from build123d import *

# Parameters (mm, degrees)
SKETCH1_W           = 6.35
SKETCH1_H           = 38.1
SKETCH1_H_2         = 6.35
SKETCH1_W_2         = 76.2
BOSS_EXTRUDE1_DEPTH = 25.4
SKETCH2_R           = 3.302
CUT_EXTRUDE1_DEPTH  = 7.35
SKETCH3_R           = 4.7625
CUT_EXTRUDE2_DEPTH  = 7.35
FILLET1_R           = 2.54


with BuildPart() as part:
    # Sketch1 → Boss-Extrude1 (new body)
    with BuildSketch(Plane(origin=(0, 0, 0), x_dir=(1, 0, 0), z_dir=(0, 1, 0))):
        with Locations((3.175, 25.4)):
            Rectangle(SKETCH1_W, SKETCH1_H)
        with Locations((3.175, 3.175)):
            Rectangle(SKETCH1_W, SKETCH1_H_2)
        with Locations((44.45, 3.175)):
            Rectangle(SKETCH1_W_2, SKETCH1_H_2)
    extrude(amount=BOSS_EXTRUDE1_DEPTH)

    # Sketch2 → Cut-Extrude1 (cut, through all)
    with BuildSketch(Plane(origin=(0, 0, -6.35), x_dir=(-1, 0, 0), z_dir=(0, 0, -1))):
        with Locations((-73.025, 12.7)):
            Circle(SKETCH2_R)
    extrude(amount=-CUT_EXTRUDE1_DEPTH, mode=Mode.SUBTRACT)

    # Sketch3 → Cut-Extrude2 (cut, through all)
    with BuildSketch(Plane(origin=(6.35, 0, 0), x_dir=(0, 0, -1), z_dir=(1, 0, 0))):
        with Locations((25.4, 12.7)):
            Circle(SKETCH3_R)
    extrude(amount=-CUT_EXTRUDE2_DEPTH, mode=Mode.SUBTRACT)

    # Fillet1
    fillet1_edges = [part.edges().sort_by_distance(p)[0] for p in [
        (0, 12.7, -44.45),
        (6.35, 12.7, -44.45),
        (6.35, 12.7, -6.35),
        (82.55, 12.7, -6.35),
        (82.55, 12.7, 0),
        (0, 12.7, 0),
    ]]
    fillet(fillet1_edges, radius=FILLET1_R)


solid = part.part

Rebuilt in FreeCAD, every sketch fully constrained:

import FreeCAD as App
import Part
import Sketcher
from FreeCAD import Vector
Q = App.Units.Quantity


def edges_at(feature, points):
    """Names of the edges that pass closest to the given points."""
    edges = feature.Shape.Edges
    near = lambda p: min(range(len(edges)), key=lambda i: edges[i].distToShape(Part.Vertex(*p))[0])
    return sorted({f"Edge{near(p) + 1}" for p in points})

doc = App.newDocument("Part")
params = doc.addObject("Spreadsheet::Sheet", "Params")
for row, (alias, value) in enumerate([
    ("sketch1_width", "3 in"),
    ("sketch1_height", "1.5 in"),
    ("sketch1_width2", "3.25 in"),
    ("pad1_length", "1 in"),
    ("sketch2_diameter", "0.26 in"),
    ("sketch3_diameter", "0.375 in"),
    ("fillet_radius", "0.1 in"),
], start=1):
    params.set(f"A{row}", alias)
    params.set(f"B{row}", "=" + value)
    params.setAlias(f"B{row}", alias)

body = doc.addObject("PartDesign::Body", "Body")

sketch1 = doc.addObject("Sketcher::SketchObject", "Sketch")
body.addObject(sketch1)
sketch1.AttachmentSupport = (doc.XZ_Plane, [""])
sketch1.MapMode = "FlatFace"
sketch1.addGeometry([
    Part.LineSegment(Vector(0, -44, 0), Vector(0, 0, 0)),
    Part.LineSegment(Vector(0, 0, 0), Vector(83, 0, 0)),
    Part.LineSegment(Vector(83, 0, 0), Vector(83, -6, 0)),
    Part.LineSegment(Vector(83, -6, 0), Vector(6, -6, 0)),
    Part.LineSegment(Vector(6, -6, 0), Vector(6, -44, 0)),
    Part.LineSegment(Vector(6, -44, 0), Vector(0, -44, 0)),
], False)
sketch1.addConstraint([
    Sketcher.Constraint("Coincident", 0, 2, 1, 1),
    Sketcher.Constraint("Coincident", 1, 2, 2, 1),
    Sketcher.Constraint("Coincident", 2, 2, 3, 1),
    Sketcher.Constraint("Coincident", 3, 2, 4, 1),
    Sketcher.Constraint("Coincident", 4, 2, 5, 1),
    Sketcher.Constraint("Coincident", 5, 2, 0, 1),
    Sketcher.Constraint("Vertical", 0),
    Sketcher.Constraint("Horizontal", 1),
    Sketcher.Constraint("Vertical", 2),
    Sketcher.Constraint("Horizontal", 3),
    Sketcher.Constraint("Vertical", 4),
    Sketcher.Constraint("Horizontal", 5),
    Sketcher.Constraint("Coincident", 0, 2, -1, 1),
    Sketcher.Constraint("Equal", 5, 2),
    Sketcher.Constraint("DistanceX", 3, 2, 3, 1, Q("3 in")),
    Sketcher.Constraint("DistanceY", 4, 2, 4, 1, Q("1.5 in")),
    Sketcher.Constraint("DistanceX", 1, 1, 1, 2, Q("3.25 in")),
])
sketch1.setExpression("Constraints[14]", "Params.sketch1_width")
sketch1.setExpression("Constraints[15]", "Params.sketch1_height")
sketch1.setExpression("Constraints[16]", "Params.sketch1_width2")
pad1 = doc.addObject("PartDesign::Pad", "Pad")
body.addObject(pad1)
pad1.Profile = sketch1
pad1.setExpression("Length", "Params.pad1_length")
pad1.Reversed = True

sketch2 = doc.addObject("Sketcher::SketchObject", "Sketch001")
body.addObject(sketch2)
sketch2.AttachmentSupport = (doc.XY_Plane, [""])
sketch2.MapMode = "FlatFace"
sketch2.AttachmentOffset = App.Placement(Vector(0, 0, -0.25 * 25.4), App.Rotation())
sketch2.addGeometry(Part.Circle(Vector(73, 12.7, 0), Vector(0, 0, 1), 3.3), False)
sketch2.addConstraint([
    Sketcher.Constraint("Diameter", 0, Q("0.26 in")),
    Sketcher.Constraint("DistanceY", -1, 1, 0, 3, Q("0.5 in")),
    Sketcher.Constraint("DistanceX", -1, 1, 0, 3, Q("2.875 in")),
])
sketch2.setExpression("Constraints[0]", "Params.sketch2_diameter")
pocket1 = doc.addObject("PartDesign::Pocket", "Pocket")
body.addObject(pocket1)
pocket1.Profile = sketch2
pocket1.Type = "ThroughAll"
pocket1.Reversed = True

sketch3 = doc.addObject("Sketcher::SketchObject", "Sketch002")
body.addObject(sketch3)
sketch3.AttachmentSupport = (doc.YZ_Plane, [""])
sketch3.MapMode = "FlatFace"
sketch3.AttachmentOffset = App.Placement(Vector(0, 0, 0.25 * 25.4), App.Rotation())
sketch3.addGeometry(Part.Circle(Vector(12.7, -25.4, 0), Vector(0, 0, 1), 4.8), False)
sketch3.addConstraint([
    Sketcher.Constraint("Diameter", 0, Q("0.375 in")),
    Sketcher.Constraint("DistanceY", 0, 3, -1, 1, Q("1 in")),
    Sketcher.Constraint("DistanceX", -1, 1, 0, 3, Q("0.5 in")),
])
sketch3.setExpression("Constraints[0]", "Params.sketch3_diameter")
pocket2 = doc.addObject("PartDesign::Pocket", "Pocket001")
body.addObject(pocket2)
pocket2.Profile = sketch3
pocket2.Type = "ThroughAll"
doc.recompute()

fillet = doc.addObject("PartDesign::Fillet", "Fillet")
body.addObject(fillet)
fillet.Base = (pocket2, edges_at(pocket2, [
    (0, 12.7, -44.45),
    (6.35, 12.7, -44.45),
    (6.35, 12.7, -6.35),
    (82.55, 12.7, -6.35),
    (82.55, 12.7, 0),
    (0, 12.7, 0),
]))
fillet.setExpression("Radius", "Params.fillet_radius")

doc.recompute()
